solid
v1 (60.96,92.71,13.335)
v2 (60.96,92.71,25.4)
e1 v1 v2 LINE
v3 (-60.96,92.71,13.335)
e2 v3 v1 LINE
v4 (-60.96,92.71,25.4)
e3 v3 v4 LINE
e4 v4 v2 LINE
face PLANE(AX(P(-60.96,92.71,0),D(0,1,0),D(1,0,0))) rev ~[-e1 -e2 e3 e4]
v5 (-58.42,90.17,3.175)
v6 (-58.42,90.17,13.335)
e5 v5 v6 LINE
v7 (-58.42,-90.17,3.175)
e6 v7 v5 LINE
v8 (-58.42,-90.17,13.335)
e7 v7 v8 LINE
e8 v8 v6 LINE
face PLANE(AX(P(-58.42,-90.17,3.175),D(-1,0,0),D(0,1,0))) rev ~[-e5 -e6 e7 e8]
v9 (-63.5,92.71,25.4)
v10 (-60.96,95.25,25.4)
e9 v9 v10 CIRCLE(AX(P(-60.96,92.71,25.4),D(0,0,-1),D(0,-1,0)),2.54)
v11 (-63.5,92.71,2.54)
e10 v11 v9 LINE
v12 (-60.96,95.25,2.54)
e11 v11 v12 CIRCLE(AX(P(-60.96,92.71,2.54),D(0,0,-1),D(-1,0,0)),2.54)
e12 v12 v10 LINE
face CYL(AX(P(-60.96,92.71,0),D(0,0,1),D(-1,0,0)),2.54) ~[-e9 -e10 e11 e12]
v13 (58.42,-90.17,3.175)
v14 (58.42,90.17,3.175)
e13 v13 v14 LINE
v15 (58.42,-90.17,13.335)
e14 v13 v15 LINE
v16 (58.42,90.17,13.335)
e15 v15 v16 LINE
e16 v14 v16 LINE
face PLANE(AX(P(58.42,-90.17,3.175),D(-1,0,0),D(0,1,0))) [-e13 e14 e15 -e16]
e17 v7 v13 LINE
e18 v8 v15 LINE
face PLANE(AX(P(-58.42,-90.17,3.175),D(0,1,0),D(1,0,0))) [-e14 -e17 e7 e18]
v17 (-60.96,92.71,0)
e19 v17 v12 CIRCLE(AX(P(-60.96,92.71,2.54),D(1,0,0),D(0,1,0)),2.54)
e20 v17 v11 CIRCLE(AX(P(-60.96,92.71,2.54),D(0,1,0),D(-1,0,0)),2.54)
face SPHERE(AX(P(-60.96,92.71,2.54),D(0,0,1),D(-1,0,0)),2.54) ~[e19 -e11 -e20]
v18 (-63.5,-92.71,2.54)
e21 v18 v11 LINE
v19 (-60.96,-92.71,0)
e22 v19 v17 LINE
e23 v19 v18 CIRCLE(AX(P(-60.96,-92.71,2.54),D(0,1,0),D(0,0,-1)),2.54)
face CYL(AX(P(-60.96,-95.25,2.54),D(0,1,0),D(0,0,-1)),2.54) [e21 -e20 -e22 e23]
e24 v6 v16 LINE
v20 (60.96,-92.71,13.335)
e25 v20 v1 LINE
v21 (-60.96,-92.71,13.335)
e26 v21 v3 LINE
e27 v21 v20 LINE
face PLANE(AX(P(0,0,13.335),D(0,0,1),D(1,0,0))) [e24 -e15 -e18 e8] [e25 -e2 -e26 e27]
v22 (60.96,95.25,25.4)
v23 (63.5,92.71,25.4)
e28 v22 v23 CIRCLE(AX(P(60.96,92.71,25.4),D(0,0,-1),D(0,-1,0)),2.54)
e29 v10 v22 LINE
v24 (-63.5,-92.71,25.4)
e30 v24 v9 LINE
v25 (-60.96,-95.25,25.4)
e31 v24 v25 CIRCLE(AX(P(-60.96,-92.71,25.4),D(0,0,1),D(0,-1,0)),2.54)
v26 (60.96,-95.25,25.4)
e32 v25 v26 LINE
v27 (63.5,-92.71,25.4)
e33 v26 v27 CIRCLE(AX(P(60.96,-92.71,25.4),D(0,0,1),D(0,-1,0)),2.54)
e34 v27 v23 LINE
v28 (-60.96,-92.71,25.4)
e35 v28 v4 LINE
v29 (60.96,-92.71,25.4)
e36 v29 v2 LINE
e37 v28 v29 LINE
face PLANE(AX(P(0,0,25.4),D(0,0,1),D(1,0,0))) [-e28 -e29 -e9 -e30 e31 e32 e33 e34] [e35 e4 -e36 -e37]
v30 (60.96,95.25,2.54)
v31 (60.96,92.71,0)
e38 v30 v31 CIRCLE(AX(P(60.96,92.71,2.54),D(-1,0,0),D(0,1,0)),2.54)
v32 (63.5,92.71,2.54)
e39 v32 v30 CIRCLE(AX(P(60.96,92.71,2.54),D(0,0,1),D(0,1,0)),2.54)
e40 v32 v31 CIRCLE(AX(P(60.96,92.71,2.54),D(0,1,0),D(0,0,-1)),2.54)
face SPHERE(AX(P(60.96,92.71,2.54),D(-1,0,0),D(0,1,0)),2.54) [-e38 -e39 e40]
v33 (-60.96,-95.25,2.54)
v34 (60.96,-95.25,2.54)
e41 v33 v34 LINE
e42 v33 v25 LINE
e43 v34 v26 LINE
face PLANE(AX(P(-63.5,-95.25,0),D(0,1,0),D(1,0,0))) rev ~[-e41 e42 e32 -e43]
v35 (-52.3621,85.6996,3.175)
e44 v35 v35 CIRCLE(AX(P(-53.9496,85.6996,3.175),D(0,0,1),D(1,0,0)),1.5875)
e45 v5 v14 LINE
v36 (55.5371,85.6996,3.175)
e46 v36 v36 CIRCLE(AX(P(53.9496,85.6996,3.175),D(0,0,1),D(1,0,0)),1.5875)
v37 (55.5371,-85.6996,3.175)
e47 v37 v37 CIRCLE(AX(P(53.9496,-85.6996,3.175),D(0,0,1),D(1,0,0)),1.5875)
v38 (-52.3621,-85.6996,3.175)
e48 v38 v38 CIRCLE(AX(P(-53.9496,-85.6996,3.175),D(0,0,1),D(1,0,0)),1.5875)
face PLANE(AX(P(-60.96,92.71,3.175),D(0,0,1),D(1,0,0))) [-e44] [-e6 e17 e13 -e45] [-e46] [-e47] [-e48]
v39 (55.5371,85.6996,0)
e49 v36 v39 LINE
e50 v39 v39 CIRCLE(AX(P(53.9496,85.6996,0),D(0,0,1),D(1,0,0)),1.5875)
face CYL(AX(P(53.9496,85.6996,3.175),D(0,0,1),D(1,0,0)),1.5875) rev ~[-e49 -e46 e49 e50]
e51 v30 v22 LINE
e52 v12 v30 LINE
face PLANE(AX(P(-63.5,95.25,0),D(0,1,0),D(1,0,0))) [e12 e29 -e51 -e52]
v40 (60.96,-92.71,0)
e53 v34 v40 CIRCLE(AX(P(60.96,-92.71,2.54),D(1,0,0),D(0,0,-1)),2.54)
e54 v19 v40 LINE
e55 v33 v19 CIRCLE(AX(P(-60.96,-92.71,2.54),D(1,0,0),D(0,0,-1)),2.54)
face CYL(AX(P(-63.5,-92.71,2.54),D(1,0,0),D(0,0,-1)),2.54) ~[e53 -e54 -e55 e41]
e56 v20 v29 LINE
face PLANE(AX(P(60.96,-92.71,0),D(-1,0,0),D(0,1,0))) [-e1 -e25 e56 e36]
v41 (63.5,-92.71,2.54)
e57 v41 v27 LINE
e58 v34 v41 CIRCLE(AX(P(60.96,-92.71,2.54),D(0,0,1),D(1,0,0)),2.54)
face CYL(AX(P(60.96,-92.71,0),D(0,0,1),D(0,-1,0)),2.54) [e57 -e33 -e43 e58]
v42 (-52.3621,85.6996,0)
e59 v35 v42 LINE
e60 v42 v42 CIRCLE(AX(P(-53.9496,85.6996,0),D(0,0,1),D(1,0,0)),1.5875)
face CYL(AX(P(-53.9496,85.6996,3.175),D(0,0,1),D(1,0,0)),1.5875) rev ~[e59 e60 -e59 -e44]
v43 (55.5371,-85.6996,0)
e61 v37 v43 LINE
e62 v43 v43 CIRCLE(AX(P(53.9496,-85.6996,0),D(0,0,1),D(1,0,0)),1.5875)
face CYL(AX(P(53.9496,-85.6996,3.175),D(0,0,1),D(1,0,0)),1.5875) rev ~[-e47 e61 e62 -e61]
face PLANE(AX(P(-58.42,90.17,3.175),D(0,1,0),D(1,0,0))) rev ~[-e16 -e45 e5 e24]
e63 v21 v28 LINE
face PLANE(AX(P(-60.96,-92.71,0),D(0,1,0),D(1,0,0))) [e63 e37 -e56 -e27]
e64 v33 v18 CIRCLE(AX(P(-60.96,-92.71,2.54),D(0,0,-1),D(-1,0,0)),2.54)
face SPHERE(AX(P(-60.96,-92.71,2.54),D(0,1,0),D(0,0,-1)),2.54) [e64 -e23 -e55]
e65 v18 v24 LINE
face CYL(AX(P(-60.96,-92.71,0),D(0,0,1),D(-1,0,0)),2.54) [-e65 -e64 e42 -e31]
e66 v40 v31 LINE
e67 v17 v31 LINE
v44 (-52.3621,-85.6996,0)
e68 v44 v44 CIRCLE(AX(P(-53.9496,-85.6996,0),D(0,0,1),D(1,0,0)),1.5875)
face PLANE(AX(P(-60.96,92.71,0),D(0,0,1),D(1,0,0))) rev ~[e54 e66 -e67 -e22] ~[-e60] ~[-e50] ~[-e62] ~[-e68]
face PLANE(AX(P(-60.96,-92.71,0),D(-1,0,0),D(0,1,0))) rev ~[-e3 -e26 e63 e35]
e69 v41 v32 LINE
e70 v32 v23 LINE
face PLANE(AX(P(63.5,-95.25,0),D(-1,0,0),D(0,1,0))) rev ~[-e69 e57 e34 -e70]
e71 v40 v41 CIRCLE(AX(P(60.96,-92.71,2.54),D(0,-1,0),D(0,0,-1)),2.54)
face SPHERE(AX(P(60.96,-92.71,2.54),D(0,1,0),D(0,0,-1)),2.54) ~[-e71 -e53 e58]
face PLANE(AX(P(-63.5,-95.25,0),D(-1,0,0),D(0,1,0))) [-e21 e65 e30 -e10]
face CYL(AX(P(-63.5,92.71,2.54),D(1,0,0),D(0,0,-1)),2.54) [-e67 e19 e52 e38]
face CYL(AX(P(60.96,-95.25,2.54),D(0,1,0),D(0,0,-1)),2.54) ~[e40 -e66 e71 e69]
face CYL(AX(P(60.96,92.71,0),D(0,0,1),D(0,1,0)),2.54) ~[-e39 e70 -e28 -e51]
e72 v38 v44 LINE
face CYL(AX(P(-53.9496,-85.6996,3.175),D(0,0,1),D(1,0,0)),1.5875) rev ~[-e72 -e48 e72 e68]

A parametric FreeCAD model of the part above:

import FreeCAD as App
import Part
import Sketcher
from FreeCAD import Vector
Q = App.Units.Quantity


def edges_at(feature, points):
    """Names of the edges that pass closest to the given points."""
    edges = feature.Shape.Edges
    near = lambda p: min(range(len(edges)), key=lambda i: edges[i].distToShape(Part.Vertex(*p))[0])
    return sorted({f"Edge{near(p) + 1}" for p in points})

doc = App.newDocument("Part")
params = doc.addObject("Spreadsheet::Sheet", "Params")
for row, (alias, value) in enumerate([
    ("sketch1_width", "5 in"),
    ("sketch1_width2", "4.8 in"),
    ("sketch1_height", "7.5 in"),
    ("sketch1_height2", "7.3 in"),
    ("pad1_length", "1 in"),
    ("sketch2_width", "4.8 in"),
    ("sketch2_height", "0.125 in"),
    ("pad2_length", "7.3 in"),
    ("sketch3_width", "4.8 in"),
    ("sketch3_width2", "4.6 in"),
    ("sketch3_height", "7.3 in"),
    ("sketch3_height2", "7.1 in"),
    ("pad3_length", "0.4 in"),
    ("sketch4_diameter", "0.125 in"),
    ("pocket1_length", "1 in"),
    ("fillet_radius", "0.1 in"),
], start=1):
    params.set(f"A{row}", alias)
    params.set(f"B{row}", "=" + value)
    params.setAlias(f"B{row}", alias)

body = doc.addObject("PartDesign::Body", "Body")

# Sketch on XY plane
sketch1 = body.newObject("Sketcher::SketchObject", "Sketch")
sketch1.AttachmentSupport = (doc.getObject("XY_Plane"), [""])
sketch1.MapMode = "FlatFace"
sketch1.addGeometry([
    Part.LineSegment(Vector(-64, 95, 0), Vector(-64, -95, 0)),  # 0
    Part.LineSegment(Vector(-64, -95, 0), Vector(64, -95, 0)),  # 1
    Part.LineSegment(Vector(64, -95, 0), Vector(64, 95, 0)),  # 2
    Part.LineSegment(Vector(64, 95, 0), Vector(-64, 95, 0)),  # 3
    Part.LineSegment(Vector(61, -93, 0), Vector(-61, -93, 0)),  # 4
    Part.LineSegment(Vector(-61, -93, 0), Vector(-61, 93, 0)),  # 5
    Part.LineSegment(Vector(-61, 93, 0), Vector(61, 93, 0)),  # 6
    Part.LineSegment(Vector(61, 93, 0), Vector(61, -93, 0)),  # 7
], False)
sketch1.addConstraint([
    Sketcher.Constraint("Coincident", 0, 2, 1, 1),
    Sketcher.Constraint("Coincident", 1, 2, 2, 1),
    Sketcher.Constraint("Coincident", 2, 2, 3, 1),
    Sketcher.Constraint("Coincident", 3, 2, 0, 1),
    Sketcher.Constraint("Coincident", 4, 2, 5, 1),
    Sketcher.Constraint("Coincident", 5, 2, 6, 1),
    Sketcher.Constraint("Coincident", 6, 2, 7, 1),
    Sketcher.Constraint("Coincident", 7, 2, 4, 1),
    Sketcher.Constraint("Vertical", 0),
    Sketcher.Constraint("Horizontal", 1),
    Sketcher.Constraint("Vertical", 2),
    Sketcher.Constraint("Horizontal", 3),
    Sketcher.Constraint("Horizontal", 4),
    Sketcher.Constraint("Vertical", 5),
    Sketcher.Constraint("Horizontal", 6),
    Sketcher.Constraint("Vertical", 7),
    Sketcher.Constraint("Symmetric", 0, 2, 2, 2, -1, 1),
    Sketcher.Constraint("Symmetric", 4, 2, 6, 2, -1, 1),
    Sketcher.Constraint("DistanceX", 1, 1, 1, 2, Q("5 in")),
    Sketcher.Constraint("DistanceX", 4, 2, 4, 1, Q("4.8 in")),
    Sketcher.Constraint("DistanceY", 0, 2, 0, 1, Q("7.5 in")),
    Sketcher.Constraint("DistanceY", 5, 1, 5, 2, Q("7.3 in")),
])
sketch1.setExpression("Constraints[18]", "Params.sketch1_width")
sketch1.setExpression("Constraints[19]", "Params.sketch1_width2")
sketch1.setExpression("Constraints[20]", "Params.sketch1_height")
sketch1.setExpression("Constraints[21]", "Params.sketch1_height2")
pad1 = body.newObject("PartDesign::Pad", "Pad")
pad1.Profile = sketch1
pad1.setExpression("Length", "Params.pad1_length")

# Sketch on XZ plane
sketch2 = body.newObject("Sketcher::SketchObject", "Sketch001")
sketch2.AttachmentSupport = (doc.getObject("XZ_Plane"), [""])
sketch2.MapMode = "FlatFace"
sketch2.AttachmentOffset = App.Placement(Vector(0, 0, -3.65 * 25.4), App.Rotation())
sketch2.addGeometry([
    Part.LineSegment(Vector(-61, 3.2, 0), Vector(-61, 0, 0)),
    Part.LineSegment(Vector(-61, 0, 0), Vector(61, 0, 0)),
    Part.LineSegment(Vector(61, 0, 0), Vector(61, 3.2, 0)),
    Part.LineSegment(Vector(61, 3.2, 0), Vector(-61, 3.2, 0)),
], False)
sketch2.addConstraint([
    Sketcher.Constraint("Coincident", 0, 2, 1, 1),
    Sketcher.Constraint("Coincident", 1, 2, 2, 1),
    Sketcher.Constraint("Coincident", 2, 2, 3, 1),
    Sketcher.Constraint("Coincident", 3, 2, 0, 1),
    Sketcher.Constraint("Vertical", 0),
    Sketcher.Constraint("Horizontal", 1),
    Sketcher.Constraint("Vertical", 2),
    Sketcher.Constraint("Horizontal", 3),
    Sketcher.Constraint("Symmetric", 0, 2, 1, 2, -1, 1),
    Sketcher.Constraint("DistanceX", 1, 1, 1, 2, Q("4.8 in")),
    Sketcher.Constraint("DistanceY", 0, 2, 0, 1, Q("0.125 in")),
])
sketch2.setExpression("Constraints[9]", "Params.sketch2_width")
sketch2.setExpression("Constraints[10]", "Params.sketch2_height")
pad2 = body.newObject("PartDesign::Pad", "Pad001")
pad2.Profile = sketch2
pad2.setExpression("Length", "Params.pad2_length")

# Sketch on XY plane
sketch3 = body.newObject("Sketcher::SketchObject", "Sketch002")
sketch3.AttachmentSupport = (doc.getObject("XY_Plane"), [""])
sketch3.MapMode = "FlatFace"
sketch3.AttachmentOffset = App.Placement(Vector(0, 0, 0.125 * 25.4), App.Rotation())
sketch3.addGeometry([
    Part.LineSegment(Vector(-61, 93, 0), Vector(-61, -93, 0)),  # 0
    Part.LineSegment(Vector(-61, -93, 0), Vector(61, -93, 0)),  # 1
    Part.LineSegment(Vector(61, -93, 0), Vector(61, 93, 0)),  # 2
    Part.LineSegment(Vector(61, 93, 0), Vector(-61, 93, 0)),  # 3
    Part.LineSegment(Vector(58, -90, 0), Vector(-58, -90, 0)),  # 4
    Part.LineSegment(Vector(-58, -90, 0), Vector(-58, 90, 0)),  # 5
    Part.LineSegment(Vector(-58, 90, 0), Vector(58, 90, 0)),  # 6
    Part.LineSegment(Vector(58, 90, 0), Vector(58, -90, 0)),  # 7
], False)
sketch3.addConstraint([
    Sketcher.Constraint("Coincident", 0, 2, 1, 1),
    Sketcher.Constraint("Coincident", 1, 2, 2, 1),
    Sketcher.Constraint("Coincident", 2, 2, 3, 1),
    Sketcher.Constraint("Coincident", 3, 2, 0, 1),
    Sketcher.Constraint("Coincident", 4, 2, 5, 1),
    Sketcher.Constraint("Coincident", 5, 2, 6, 1),
    Sketcher.Constraint("Coincident", 6, 2, 7, 1),
    Sketcher.Constraint("Coincident", 7, 2, 4, 1),
    Sketcher.Constraint("Vertical", 0),
    Sketcher.Constraint("Horizontal", 1),
    Sketcher.Constraint("Vertical", 2),
    Sketcher.Constraint("Horizontal", 3),
    Sketcher.Constraint("Horizontal", 4),
    Sketcher.Constraint("Vertical", 5),
    Sketcher.Constraint("Horizontal", 6),
    Sketcher.Constraint("Vertical", 7),
    Sketcher.Constraint("Symmetric", 0, 2, 2, 2, -1, 1),
    Sketcher.Constraint("Symmetric", 4, 2, 6, 2, -1, 1),
    Sketcher.Constraint("DistanceX", 1, 1, 1, 2, Q("4.8 in")),
    Sketcher.Constraint("DistanceX", 4, 2, 4, 1, Q("4.6 in")),
    Sketcher.Constraint("DistanceY", 0, 2, 0, 1, Q("7.3 in")),
    Sketcher.Constraint("DistanceY", 5, 1, 5, 2, Q("7.1 in")),
])
sketch3.setExpression("Constraints[18]", "Params.sketch3_width")
sketch3.setExpression("Constraints[19]", "Params.sketch3_width2")
sketch3.setExpression("Constraints[20]", "Params.sketch3_height")
sketch3.setExpression("Constraints[21]", "Params.sketch3_height2")
pad3 = body.newObject("PartDesign::Pad", "Pad002")
pad3.Profile = sketch3
pad3.setExpression("Length", "Params.pad3_length")

# Sketch on XY plane
sketch4 = body.newObject("Sketcher::SketchObject", "Sketch003")
sketch4.AttachmentSupport = (doc.getObject("XY_Plane"), [""])
sketch4.MapMode = "FlatFace"
sketch4.AttachmentOffset = App.Placement(Vector(0, 0, 0.125 * 25.4), App.Rotation())
sketch4.addGeometry([
    Part.Circle(Vector(-53.9, 85.7, 0), Vector(0, 0, 1), 1.6),
    Part.Circle(Vector(53.9, 85.7, 0), Vector(0, 0, 1), 1.6),
    Part.Circle(Vector(-53.9, -85.7, 0), Vector(0, 0, 1), 1.6),
    Part.Circle(Vector(53.9, -85.7, 0), Vector(0, 0, 1), 1.6),
], False)
sketch4.addConstraint([
    Sketcher.Constraint("Equal", 0, 1),
    Sketcher.Constraint("Equal", 1, 2),
    Sketcher.Constraint("Equal", 2, 3),
    Sketcher.Constraint("Symmetric", 1, 3, 2, 3, -1, 1),
    Sketcher.Constraint("Symmetric", 0, 3, 3, 3, -1, 1),
    Sketcher.Constraint("Symmetric", 0, 3, 1, 3, -2),
    Sketcher.Constraint("Diameter", 0, Q("0.125 in")),
    Sketcher.Constraint("DistanceX", 0, 3, -1, 1, Q("2.124 in")),
    Sketcher.Constraint("DistanceY", -1, 1, 0, 3, Q("3.374 in")),
])
sketch4.setExpression("Constraints[6]", "Params.sketch4_diameter")
pocket1 = body.newObject("PartDesign::Pocket", "Pocket")
pocket1.Profile = sketch4
pocket1.setExpression("Length", "Params.pocket1_length")
doc.recompute()

fillet = body.newObject("PartDesign::Fillet", "Fillet")
fillet.Base = (pocket1, edges_at(pocket1, [
    (-63.5, 95.25, 12.7),
    (-63.5, 0, 0),
    (0, 95.25, 0),
    (63.5, 95.25, 12.7),
    (63.5, 0, 0),
    (0, -95.25, 0),
    (63.5, -95.25, 12.7),
    (-63.5, -95.25, 12.7),
]))
fillet.setExpression("Radius", "Params.fillet_radius")

doc.recompute()
